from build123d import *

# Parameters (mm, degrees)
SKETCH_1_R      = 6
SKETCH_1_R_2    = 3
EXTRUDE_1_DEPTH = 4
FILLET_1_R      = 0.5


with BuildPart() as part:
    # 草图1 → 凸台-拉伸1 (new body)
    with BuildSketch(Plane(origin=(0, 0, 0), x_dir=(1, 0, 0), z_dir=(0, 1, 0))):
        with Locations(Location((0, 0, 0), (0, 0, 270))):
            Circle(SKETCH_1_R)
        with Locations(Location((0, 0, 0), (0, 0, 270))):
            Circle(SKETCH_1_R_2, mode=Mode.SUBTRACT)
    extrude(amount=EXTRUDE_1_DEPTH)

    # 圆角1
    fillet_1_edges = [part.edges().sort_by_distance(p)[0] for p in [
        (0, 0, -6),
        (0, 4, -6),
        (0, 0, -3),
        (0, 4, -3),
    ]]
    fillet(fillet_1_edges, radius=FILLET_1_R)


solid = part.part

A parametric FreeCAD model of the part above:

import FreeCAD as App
import Part
import Sketcher
from FreeCAD import Vector
Q = App.Units.Quantity


def edges_at(feature, points):
    """Names of the edges that pass closest to the given points."""
    edges = feature.Shape.Edges
    near = lambda p: min(range(len(edges)), key=lambda i: edges[i].distToShape(Part.Vertex(*p))[0])
    return sorted({f"Edge{near(p) + 1}" for p in points})

doc = App.newDocument("Part")
body = doc.addObject("PartDesign::Body", "Body")

# Sketch on XZ plane
sketch1 = body.newObject("Sketcher::SketchObject", "Sketch")
sketch1.AttachmentSupport = (doc.getObject("XZ_Plane"), [""])
sketch1.MapMode = "FlatFace"
sketch1.addGeometry(Part.Circle(Vector(0, 0, 0), Vector(0, 0, 1), 6), False)
sketch1.addGeometry(Part.Circle(Vector(0, 0, 0), Vector(0, 0, 1), 3), False)
sketch1.addConstraint(Sketcher.Constraint("Coincident", 0, 3, -1, 1))
sketch1.addConstraint(Sketcher.Constraint("Coincident", 1, 3, -1, 1))
sketch1.addConstraint(Sketcher.Constraint("Diameter", 0, Q("12 mm")))
sketch1.addConstraint(Sketcher.Constraint("Diameter", 1, Q("6 mm")))
pad1 = body.newObject("PartDesign::Pad", "Pad")
pad1.Profile = sketch1
pad1.Length = 4
pad1.Reversed = True
doc.recompute()

fillet = body.newObject("PartDesign::Fillet", "Fillet")
fillet.Base = (pad1, edges_at(pad1, [
    (0, 0, -6),
    (0, 4, -6),
    (0, 0, -3),
    (0, 4, -3),
]))
fillet.Radius = 0.5

doc.recompute()
